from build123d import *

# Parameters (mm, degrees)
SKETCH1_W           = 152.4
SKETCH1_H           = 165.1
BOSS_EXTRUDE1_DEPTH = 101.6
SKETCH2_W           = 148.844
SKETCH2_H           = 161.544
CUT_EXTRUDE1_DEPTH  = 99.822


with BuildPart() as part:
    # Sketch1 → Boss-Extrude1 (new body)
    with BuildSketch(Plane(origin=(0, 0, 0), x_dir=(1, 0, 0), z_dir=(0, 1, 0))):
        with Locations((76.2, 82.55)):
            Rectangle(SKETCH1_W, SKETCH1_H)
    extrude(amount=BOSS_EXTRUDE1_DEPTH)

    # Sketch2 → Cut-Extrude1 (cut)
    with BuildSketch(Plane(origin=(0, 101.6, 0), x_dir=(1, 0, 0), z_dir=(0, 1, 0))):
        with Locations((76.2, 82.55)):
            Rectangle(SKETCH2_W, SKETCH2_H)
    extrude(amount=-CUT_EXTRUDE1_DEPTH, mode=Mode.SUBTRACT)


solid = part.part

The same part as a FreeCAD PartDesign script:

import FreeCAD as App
import Part
import Sketcher

V = App.Vector
Q = App.Units.Quantity


def add_polygon(sketch, points):
    """Adds a closed chain of lines whose ends are joined by coincident constraints."""
    first, n = sketch.GeometryCount, len(points)
    for a, b in zip(points, points[1:] + points[:1]):
        sketch.addGeometry(Part.LineSegment(App.Vector(*a, 0), App.Vector(*b, 0)), False)
    for i in range(n):
        sketch.addConstraint(Sketcher.Constraint("Coincident", first + i, 2, first + (i + 1) % n, 1))

doc = App.newDocument("Part")
body = doc.addObject("PartDesign::Body", "Body")

# Sketch on XZ plane
sketch1 = body.newObject("Sketcher::SketchObject", "Sketch")
sketch1.AttachmentSupport = (doc.getObject("XZ_Plane"), [""])
sketch1.MapMode = "FlatFace"
add_polygon(sketch1, [(0, -165), (0, 0), (152, 0), (152, -165)])  # lines 0-3
sketch1.addConstraint(Sketcher.Constraint("Vertical", 0))
sketch1.addConstraint(Sketcher.Constraint("Horizontal", 1))
sketch1.addConstraint(Sketcher.Constraint("Vertical", 2))
sketch1.addConstraint(Sketcher.Constraint("Horizontal", 3))
sketch1.addConstraint(Sketcher.Constraint("Coincident", 0, 2, -1, 1))
sketch1.addConstraint(Sketcher.Constraint("DistanceX", 1, 1, 1, 2, Q("6 in")))
sketch1.addConstraint(Sketcher.Constraint("DistanceY", 0, 1, 0, 2, Q("6.5 in")))
pad1 = body.newObject("PartDesign::Pad", "Pad")
pad1.Profile = sketch1
pad1.Length = Q("4 in")
pad1.Reversed = True

# Sketch on XZ plane
sketch2 = body.newObject("Sketcher::SketchObject", "Sketch001")
sketch2.AttachmentSupport = (doc.getObject("XZ_Plane"), [""])
sketch2.MapMode = "FlatFace"
sketch2.AttachmentOffset = App.Placement(V(0, 0, -4 * 25.4), App.Rotation())
add_polygon(sketch2, [(2, -163), (2, -2), (151, -2), (151, -163)])  # lines 0-3
sketch2.addConstraint(Sketcher.Constraint("Vertical", 0))
sketch2.addConstraint(Sketcher.Constraint("Horizontal", 1))
sketch2.addConstraint(Sketcher.Constraint("Vertical", 2))
sketch2.addConstraint(Sketcher.Constraint("Horizontal", 3))
sketch2.addConstraint(Sketcher.Constraint("DistanceX", 1, 1, 1, 2, Q("5.86 in")))
sketch2.addConstraint(Sketcher.Constraint("DistanceY", 0, 1, 0, 2, Q("6.36 in")))
sketch2.addConstraint(Sketcher.Constraint("DistanceX", -1, 1, 0, 2, Q("0.07 in")))
sketch2.addConstraint(Sketcher.Constraint("DistanceY", 0, 2, -1, 1, Q("0.07 in")))
pocket1 = body.newObject("PartDesign::Pocket", "Pocket")
pocket1.Profile = sketch2
pocket1.Length = Q("3.93 in")
pocket1.Reversed = True

doc.recompute()
